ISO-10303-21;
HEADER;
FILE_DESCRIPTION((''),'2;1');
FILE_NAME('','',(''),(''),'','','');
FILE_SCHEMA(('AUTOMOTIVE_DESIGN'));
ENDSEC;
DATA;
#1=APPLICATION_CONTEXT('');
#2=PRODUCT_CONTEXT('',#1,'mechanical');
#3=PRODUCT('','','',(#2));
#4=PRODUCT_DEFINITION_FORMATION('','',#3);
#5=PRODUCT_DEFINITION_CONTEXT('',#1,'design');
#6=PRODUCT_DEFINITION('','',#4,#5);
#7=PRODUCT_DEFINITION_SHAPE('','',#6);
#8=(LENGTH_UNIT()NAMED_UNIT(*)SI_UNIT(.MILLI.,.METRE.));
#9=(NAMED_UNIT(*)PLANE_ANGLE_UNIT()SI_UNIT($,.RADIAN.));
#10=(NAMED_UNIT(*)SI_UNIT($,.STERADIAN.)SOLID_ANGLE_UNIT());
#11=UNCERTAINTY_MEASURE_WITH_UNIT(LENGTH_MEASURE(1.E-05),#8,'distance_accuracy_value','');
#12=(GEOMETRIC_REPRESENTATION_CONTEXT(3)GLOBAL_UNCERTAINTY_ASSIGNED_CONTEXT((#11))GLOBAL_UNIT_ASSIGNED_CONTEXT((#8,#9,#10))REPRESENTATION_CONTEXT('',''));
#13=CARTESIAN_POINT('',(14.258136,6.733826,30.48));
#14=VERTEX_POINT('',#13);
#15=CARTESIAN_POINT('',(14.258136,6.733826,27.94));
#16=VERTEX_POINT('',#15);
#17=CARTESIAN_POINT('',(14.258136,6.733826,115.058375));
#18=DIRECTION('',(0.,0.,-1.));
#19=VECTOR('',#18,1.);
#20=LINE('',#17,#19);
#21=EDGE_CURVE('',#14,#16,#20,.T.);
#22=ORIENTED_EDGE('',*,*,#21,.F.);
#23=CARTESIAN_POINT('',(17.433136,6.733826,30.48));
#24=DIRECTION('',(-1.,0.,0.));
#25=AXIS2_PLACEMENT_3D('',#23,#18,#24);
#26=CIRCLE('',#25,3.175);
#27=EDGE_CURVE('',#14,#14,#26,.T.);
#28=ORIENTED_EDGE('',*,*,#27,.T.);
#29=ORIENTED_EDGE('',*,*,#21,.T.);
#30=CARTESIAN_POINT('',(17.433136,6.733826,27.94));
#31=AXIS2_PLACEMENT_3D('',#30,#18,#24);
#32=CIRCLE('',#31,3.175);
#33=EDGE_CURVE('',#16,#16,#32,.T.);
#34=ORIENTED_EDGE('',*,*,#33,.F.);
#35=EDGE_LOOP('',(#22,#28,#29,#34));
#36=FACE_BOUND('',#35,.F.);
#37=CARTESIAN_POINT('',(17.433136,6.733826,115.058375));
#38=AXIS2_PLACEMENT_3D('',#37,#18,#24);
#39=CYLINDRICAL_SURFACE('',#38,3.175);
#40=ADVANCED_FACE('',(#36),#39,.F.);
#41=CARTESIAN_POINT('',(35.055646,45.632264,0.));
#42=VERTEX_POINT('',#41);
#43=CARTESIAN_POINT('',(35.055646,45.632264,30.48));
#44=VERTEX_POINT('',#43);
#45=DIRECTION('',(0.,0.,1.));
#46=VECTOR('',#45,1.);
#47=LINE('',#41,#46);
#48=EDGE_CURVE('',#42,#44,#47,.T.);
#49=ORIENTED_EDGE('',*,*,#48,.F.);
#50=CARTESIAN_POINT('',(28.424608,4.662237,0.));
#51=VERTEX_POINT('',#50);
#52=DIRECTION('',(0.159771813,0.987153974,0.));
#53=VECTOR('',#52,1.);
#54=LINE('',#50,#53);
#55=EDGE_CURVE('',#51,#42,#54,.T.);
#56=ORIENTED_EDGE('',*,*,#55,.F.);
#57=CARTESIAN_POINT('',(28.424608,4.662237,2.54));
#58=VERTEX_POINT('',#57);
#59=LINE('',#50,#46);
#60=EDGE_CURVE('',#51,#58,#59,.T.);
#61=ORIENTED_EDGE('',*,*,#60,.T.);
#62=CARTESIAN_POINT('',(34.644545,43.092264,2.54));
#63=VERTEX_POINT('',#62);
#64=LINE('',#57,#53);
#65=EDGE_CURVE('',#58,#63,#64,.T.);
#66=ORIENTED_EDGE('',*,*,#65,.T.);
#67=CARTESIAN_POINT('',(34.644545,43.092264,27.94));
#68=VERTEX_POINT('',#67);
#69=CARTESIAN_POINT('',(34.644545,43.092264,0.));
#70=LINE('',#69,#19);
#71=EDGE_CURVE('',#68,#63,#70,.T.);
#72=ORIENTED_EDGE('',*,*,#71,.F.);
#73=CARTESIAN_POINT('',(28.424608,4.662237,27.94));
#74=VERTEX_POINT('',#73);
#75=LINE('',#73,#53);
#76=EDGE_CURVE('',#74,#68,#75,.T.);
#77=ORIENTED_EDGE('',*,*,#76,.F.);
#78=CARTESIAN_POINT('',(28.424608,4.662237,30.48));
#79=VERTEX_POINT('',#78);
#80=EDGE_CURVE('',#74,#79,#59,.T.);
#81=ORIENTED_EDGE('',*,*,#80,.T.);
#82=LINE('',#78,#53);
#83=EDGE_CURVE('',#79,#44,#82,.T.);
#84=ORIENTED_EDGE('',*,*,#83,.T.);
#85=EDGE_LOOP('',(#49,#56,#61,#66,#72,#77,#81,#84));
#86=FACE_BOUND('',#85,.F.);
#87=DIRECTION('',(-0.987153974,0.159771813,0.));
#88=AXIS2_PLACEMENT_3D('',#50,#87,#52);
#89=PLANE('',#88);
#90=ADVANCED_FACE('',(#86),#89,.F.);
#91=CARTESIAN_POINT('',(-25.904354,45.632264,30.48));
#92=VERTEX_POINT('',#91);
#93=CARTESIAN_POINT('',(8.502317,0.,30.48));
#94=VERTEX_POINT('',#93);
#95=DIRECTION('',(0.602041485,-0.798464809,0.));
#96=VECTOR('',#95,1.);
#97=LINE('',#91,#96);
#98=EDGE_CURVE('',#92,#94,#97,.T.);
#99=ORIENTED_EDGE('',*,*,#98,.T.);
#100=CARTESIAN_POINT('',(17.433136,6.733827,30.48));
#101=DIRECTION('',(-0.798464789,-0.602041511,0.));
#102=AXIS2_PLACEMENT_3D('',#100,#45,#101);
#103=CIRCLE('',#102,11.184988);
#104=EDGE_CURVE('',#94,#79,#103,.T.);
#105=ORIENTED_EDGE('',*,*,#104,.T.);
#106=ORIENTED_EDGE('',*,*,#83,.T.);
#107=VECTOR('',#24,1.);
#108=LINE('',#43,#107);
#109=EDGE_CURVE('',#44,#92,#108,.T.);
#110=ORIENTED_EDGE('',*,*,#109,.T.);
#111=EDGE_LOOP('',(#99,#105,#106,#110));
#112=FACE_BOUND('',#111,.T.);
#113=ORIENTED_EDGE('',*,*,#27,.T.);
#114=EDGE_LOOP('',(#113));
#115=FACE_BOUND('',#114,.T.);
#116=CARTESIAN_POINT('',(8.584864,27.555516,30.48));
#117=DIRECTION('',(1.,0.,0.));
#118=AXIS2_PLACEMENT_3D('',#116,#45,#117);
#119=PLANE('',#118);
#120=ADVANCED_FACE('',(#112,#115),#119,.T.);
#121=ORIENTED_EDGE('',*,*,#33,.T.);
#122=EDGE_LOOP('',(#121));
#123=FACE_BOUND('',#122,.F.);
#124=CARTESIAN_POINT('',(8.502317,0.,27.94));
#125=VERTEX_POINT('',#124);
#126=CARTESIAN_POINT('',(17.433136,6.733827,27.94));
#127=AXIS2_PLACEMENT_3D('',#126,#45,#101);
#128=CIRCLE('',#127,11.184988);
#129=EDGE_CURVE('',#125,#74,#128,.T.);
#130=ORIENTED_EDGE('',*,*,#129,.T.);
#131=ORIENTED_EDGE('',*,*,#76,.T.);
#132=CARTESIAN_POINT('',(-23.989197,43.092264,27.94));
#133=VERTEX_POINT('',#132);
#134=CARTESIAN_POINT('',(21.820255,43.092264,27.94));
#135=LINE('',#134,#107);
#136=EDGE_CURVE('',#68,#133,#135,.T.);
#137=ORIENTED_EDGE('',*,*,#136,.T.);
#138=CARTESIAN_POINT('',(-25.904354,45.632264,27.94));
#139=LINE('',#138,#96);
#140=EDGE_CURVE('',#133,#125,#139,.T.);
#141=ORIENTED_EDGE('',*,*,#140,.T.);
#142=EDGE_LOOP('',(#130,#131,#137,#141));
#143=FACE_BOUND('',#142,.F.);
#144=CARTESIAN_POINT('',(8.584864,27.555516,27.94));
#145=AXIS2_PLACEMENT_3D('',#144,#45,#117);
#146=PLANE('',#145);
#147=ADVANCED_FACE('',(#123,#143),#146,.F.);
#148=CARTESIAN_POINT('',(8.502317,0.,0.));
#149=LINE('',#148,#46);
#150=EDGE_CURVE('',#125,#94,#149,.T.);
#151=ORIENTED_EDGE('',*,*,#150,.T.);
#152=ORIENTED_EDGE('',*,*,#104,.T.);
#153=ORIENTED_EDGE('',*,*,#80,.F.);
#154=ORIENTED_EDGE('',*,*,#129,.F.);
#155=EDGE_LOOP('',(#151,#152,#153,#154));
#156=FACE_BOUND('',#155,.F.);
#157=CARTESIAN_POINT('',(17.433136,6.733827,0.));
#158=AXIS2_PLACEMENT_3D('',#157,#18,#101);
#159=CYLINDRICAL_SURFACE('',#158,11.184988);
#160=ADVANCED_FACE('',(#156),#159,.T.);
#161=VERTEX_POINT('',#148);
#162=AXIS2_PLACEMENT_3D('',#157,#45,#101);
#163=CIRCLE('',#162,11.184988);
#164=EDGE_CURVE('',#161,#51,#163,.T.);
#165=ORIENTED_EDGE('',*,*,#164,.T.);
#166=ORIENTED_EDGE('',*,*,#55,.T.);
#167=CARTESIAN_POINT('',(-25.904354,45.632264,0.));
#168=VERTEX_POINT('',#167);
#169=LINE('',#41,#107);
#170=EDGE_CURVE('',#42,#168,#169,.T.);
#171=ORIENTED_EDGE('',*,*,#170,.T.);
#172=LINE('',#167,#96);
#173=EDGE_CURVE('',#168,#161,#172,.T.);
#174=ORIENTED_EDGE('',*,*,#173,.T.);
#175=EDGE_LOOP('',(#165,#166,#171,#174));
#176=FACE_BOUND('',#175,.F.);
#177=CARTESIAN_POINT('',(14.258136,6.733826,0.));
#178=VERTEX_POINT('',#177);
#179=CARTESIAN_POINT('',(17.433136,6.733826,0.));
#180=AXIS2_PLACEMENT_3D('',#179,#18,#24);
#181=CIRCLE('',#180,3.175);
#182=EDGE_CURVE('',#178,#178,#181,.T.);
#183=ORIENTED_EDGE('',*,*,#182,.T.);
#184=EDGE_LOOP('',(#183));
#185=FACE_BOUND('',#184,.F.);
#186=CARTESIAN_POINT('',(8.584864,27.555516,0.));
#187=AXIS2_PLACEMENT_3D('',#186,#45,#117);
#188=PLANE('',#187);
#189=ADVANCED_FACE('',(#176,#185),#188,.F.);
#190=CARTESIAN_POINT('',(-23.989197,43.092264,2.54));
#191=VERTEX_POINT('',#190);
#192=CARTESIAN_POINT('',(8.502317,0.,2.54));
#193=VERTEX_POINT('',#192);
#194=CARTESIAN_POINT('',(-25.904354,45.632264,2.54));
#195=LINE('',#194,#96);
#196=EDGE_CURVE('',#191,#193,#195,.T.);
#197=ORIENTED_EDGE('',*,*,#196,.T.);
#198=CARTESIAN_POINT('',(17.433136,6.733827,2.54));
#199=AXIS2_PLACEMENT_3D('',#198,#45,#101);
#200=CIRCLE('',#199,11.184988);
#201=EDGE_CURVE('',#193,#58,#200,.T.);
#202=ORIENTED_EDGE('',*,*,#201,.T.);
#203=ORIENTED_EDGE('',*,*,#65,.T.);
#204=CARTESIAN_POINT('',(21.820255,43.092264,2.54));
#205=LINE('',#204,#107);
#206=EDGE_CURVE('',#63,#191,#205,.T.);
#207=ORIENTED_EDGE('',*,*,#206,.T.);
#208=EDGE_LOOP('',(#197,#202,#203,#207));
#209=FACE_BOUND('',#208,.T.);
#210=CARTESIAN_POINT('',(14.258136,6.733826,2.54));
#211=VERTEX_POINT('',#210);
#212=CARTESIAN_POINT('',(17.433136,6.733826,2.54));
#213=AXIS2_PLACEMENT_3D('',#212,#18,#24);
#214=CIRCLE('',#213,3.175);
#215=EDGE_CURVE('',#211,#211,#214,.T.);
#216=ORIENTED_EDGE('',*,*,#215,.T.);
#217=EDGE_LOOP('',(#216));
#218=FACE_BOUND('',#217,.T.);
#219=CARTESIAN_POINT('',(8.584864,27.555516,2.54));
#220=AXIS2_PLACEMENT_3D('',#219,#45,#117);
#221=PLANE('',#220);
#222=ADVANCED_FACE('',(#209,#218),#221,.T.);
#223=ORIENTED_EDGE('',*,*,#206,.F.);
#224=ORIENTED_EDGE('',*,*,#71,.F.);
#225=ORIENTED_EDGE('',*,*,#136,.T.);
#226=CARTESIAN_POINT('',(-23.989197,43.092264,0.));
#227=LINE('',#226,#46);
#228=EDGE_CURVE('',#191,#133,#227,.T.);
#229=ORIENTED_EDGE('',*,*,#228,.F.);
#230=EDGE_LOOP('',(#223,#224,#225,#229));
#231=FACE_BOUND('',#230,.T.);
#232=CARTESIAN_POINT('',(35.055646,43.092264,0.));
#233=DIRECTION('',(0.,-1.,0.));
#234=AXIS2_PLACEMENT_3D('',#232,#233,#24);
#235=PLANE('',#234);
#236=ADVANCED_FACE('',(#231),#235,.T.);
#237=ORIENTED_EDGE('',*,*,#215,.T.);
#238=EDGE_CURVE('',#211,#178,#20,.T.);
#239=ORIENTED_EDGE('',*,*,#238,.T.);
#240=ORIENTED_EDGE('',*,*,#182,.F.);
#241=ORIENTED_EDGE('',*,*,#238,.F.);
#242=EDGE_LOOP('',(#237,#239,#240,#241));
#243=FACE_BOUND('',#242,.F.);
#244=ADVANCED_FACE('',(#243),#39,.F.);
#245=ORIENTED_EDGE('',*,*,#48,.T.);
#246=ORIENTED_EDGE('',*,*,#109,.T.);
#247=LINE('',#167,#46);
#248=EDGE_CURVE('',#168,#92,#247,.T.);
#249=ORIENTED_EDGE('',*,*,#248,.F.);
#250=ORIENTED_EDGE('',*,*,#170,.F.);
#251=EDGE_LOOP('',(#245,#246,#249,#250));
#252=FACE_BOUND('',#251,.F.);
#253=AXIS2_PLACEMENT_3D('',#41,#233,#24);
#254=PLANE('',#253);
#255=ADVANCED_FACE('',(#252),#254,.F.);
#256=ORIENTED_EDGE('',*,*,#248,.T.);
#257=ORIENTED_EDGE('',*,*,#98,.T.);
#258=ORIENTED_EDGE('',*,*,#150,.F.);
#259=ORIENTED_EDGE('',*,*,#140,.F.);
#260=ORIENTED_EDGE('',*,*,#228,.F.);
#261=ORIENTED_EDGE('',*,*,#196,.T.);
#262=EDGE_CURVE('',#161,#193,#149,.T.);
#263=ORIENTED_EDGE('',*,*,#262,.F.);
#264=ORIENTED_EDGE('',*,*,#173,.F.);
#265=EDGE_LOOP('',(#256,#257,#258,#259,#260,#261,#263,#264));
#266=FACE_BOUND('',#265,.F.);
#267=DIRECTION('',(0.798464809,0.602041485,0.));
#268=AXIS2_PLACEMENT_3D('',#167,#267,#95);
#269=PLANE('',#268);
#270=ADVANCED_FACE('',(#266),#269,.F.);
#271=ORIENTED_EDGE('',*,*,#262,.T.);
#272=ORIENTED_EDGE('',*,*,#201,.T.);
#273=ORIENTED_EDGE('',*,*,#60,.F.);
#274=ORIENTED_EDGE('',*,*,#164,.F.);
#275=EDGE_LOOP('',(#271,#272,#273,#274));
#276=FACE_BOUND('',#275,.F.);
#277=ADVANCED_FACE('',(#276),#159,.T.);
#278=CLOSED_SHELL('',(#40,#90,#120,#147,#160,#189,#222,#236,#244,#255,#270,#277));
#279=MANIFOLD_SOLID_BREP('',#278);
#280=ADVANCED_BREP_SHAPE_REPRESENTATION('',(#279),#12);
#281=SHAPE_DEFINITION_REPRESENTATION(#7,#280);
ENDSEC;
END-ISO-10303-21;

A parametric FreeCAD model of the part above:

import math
import FreeCAD as App
import Part
import Sketcher

V = App.Vector
Q = App.Units.Quantity


def faces_at(feature, points):
    """Names of the faces that lie closest to the given points."""
    faces = feature.Shape.Faces
    near = lambda p: min(range(len(faces)), key=lambda i: faces[i].distToShape(Part.Vertex(*p))[0])
    return sorted({f"Face{near(p) + 1}" for p in points})

doc = App.newDocument("Part")
body = doc.addObject("PartDesign::Body", "Body")

# Sketch on XY plane
sketch1 = body.newObject("Sketcher::SketchObject", "Sketch")
sketch1.AttachmentSupport = (doc.getObject("XY_Plane"), [""])
sketch1.MapMode = "FlatFace"
sketch1.addGeometry(Part.LineSegment(V(28, 5, 0), V(35, 46, 0)), False)
sketch1.addGeometry(Part.LineSegment(V(35, 46, 0), V(-26, 46, 0)), False)
sketch1.addGeometry(Part.LineSegment(V(-26, 46, 0), V(9, 0, 0)), False)
sketch1.addGeometry(Part.ArcOfCircle(Part.Circle(V(17, 7, 0), V(0, 0, 1), 11), math.radians(-143), math.radians(-11)), False)
sketch1.addConstraint(Sketcher.Constraint("Coincident", 0, 2, 1, 1))
sketch1.addConstraint(Sketcher.Constraint("Coincident", 1, 2, 2, 1))
sketch1.addConstraint(Sketcher.Constraint("Tangent", 2, 2, 3, 1))
sketch1.addConstraint(Sketcher.Constraint("Coincident", 3, 2, 0, 1))
sketch1.addConstraint(Sketcher.Constraint("Horizontal", 1))
sketch1.addConstraint(Sketcher.Constraint("PointOnObject", 2, 2, -1))
sketch1.addConstraint(Sketcher.Constraint("DistanceX", 1, 2, 1, 1, Q("2.4 in")))
sketch1.addConstraint(Sketcher.Constraint("Distance", 2, Q("2.25 in")))
sketch1.addConstraint(Sketcher.Constraint("Radius", 3, 11.184988))
sketch1.addConstraint(Sketcher.Constraint("DistanceX", 3, 3, 0, 2, 17.62251))
sketch1.addConstraint(Sketcher.Constraint("DistanceY", 3, 2, 3, 3, 2.07159))
sketch1.addConstraint(Sketcher.Constraint("DistanceX", -1, 1, 3, 3, 17.433136))
pad1 = body.newObject("PartDesign::Pad", "Pad")
pad1.Profile = sketch1
pad1.Length = Q("1.2 in")
doc.recompute()

thickness = body.newObject("PartDesign::Thickness", "Thickness")
thickness.Base = (pad1, faces_at(pad1, [(19.982, -4.157, 15.24), (31.74, 25.147, 15.24), (-8.701, 22.816, 15.24)]))
thickness.Value = Q("0.1 in")
thickness.Reversed = True
thickness.Join = "Arc"

# Sketch on XY plane
sketch2 = body.newObject("Sketcher::SketchObject", "Sketch001")
sketch2.AttachmentSupport = (doc.getObject("XY_Plane"), [""])
sketch2.MapMode = "FlatFace"
sketch2.AttachmentOffset = App.Placement(V(0, 0, 1.2 * 25.4), App.Rotation())
sketch2.addGeometry(Part.Circle(V(17.4, 6.7, 0), V(0, 0, 1), 3.2), False)
sketch2.addConstraint(Sketcher.Constraint("Diameter", 0, Q("0.25 in")))
sketch2.addConstraint(Sketcher.Constraint("DistanceX", -1, 1, 0, 3, 17.433136))
sketch2.addConstraint(Sketcher.Constraint("DistanceY", -1, 1, 0, 3, 6.733826))
doc.recompute()
hole = body.newObject("PartDesign::Hole", "Hole")
hole.Profile = sketch2
hole.ThreadType = "None"
hole.Diameter = Q("0.25 in")
hole.DepthType = "ThroughAll"

doc.recompute()
